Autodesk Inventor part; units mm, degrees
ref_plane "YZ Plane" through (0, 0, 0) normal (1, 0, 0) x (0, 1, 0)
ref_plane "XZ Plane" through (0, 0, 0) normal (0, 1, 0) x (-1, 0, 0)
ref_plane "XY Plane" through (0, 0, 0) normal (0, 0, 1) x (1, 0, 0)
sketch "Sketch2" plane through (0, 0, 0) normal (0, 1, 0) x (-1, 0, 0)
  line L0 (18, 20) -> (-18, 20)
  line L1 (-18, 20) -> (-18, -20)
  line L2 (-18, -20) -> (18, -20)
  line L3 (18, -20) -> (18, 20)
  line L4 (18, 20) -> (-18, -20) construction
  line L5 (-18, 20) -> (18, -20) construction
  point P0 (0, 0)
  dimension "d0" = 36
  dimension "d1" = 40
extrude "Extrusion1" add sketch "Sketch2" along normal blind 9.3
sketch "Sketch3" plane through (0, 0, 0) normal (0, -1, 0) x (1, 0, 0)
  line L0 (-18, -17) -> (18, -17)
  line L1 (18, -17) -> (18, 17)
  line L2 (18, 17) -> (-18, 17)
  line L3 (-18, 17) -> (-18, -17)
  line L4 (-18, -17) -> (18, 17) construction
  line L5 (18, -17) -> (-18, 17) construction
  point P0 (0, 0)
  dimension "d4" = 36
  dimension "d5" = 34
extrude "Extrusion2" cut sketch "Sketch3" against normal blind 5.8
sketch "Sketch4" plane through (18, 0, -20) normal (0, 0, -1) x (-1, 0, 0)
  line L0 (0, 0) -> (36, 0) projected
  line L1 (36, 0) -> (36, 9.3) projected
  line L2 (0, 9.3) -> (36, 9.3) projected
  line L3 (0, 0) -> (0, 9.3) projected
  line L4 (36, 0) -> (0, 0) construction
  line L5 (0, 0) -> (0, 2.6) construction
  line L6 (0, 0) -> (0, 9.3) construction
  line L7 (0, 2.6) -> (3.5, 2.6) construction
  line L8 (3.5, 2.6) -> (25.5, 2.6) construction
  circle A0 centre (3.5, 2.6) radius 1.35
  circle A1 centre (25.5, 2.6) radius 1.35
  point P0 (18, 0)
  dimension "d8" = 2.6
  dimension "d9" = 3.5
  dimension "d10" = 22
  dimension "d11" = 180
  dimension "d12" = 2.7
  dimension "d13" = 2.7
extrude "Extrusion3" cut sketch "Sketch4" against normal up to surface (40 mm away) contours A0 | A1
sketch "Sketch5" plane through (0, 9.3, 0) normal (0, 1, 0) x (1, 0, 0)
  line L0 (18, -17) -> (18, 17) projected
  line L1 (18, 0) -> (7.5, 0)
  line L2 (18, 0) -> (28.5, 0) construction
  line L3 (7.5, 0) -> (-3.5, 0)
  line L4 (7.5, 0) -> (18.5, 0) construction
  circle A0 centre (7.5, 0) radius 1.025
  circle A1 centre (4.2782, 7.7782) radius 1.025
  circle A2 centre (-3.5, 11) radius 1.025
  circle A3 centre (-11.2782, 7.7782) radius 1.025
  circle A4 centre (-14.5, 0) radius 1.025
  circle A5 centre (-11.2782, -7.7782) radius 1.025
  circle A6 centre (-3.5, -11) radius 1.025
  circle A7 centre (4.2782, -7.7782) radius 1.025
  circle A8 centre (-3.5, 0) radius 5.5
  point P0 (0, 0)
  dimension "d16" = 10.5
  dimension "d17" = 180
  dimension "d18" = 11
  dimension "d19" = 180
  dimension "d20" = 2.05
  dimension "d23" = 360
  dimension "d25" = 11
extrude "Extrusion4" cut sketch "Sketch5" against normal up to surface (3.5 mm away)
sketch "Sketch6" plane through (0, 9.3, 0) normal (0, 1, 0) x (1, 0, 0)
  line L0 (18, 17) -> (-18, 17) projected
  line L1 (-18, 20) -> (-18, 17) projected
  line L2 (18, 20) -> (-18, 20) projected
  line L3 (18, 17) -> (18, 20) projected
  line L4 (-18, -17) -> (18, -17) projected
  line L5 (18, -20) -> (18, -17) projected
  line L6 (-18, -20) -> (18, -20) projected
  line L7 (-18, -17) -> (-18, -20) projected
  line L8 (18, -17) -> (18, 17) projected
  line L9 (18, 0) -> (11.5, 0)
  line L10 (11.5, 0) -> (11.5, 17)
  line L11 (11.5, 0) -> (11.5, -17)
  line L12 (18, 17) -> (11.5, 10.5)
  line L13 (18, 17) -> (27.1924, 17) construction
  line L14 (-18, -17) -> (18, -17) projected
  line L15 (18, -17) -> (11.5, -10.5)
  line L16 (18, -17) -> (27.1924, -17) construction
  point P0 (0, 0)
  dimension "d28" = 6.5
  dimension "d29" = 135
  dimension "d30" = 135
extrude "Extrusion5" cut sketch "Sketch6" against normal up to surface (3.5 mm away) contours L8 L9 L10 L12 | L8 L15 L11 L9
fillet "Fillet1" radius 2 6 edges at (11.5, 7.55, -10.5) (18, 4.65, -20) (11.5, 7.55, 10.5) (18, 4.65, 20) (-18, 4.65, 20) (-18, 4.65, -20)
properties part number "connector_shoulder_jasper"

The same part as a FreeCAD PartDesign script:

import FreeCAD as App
import Part
import Sketcher

V = App.Vector
Q = App.Units.Quantity


def edges_at(feature, points):
    """Names of the edges that pass closest to the given points."""
    edges = feature.Shape.Edges
    near = lambda p: min(range(len(edges)), key=lambda i: edges[i].distToShape(Part.Vertex(*p))[0])
    return sorted({f"Edge{near(p) + 1}" for p in points})


def add_polygon(sketch, points):
    """Adds a closed chain of lines whose ends are joined by coincident constraints."""
    first, n = sketch.GeometryCount, len(points)
    for a, b in zip(points, points[1:] + points[:1]):
        sketch.addGeometry(Part.LineSegment(App.Vector(*a, 0), App.Vector(*b, 0)), False)
    for i in range(n):
        sketch.addConstraint(Sketcher.Constraint("Coincident", first + i, 2, first + (i + 1) % n, 1))

doc = App.newDocument("Part")
body = doc.addObject("PartDesign::Body", "Body")

sketch1 = body.newObject("Sketcher::SketchObject", "Sketch")
sketch1.AttachmentSupport = (doc.getObject("XZ_Plane"), [""])
sketch1.MapMode = "FlatFace"
add_polygon(sketch1, [(-18, -20), (-18, 20), (18, 20), (18, -20)])
sketch1.addConstraint([
    Sketcher.Constraint("Vertical", 0),
    Sketcher.Constraint("Horizontal", 1),
    Sketcher.Constraint("Vertical", 2),
    Sketcher.Constraint("Horizontal", 3),
    Sketcher.Constraint("Symmetric", 0, 2, 2, 2, -1, 1),
    Sketcher.Constraint("DistanceX", 1, 1, 1, 2, Q("36 mm")),
    Sketcher.Constraint("DistanceY", 0, 1, 0, 2, Q("40 mm")),
])
pad1 = body.newObject("PartDesign::Pad", "Pad")
pad1.Profile = sketch1
pad1.Length = 9.3
pad1.Reversed = True

sketch2 = body.newObject("Sketcher::SketchObject", "Sketch001")
sketch2.AttachmentSupport = (doc.getObject("XZ_Plane"), [""])
sketch2.MapMode = "FlatFace"
add_polygon(sketch2, [(-18, 17), (-18, -17), (18, -17), (18, 17)])
sketch2.addConstraint([
    Sketcher.Constraint("Vertical", 0),
    Sketcher.Constraint("Horizontal", 1),
    Sketcher.Constraint("Vertical", 2),
    Sketcher.Constraint("Horizontal", 3),
    Sketcher.Constraint("Symmetric", 0, 2, 2, 2, -1, 1),
    Sketcher.Constraint("DistanceX", 1, 1, 1, 2, Q("36 mm")),
    Sketcher.Constraint("DistanceY", 0, 2, 0, 1, Q("34 mm")),
])
pocket1 = body.newObject("PartDesign::Pocket", "Pocket")
pocket1.Profile = sketch2
pocket1.Length = 5.8

sketch3 = body.newObject("Sketcher::SketchObject", "Sketch002")
sketch3.AttachmentSupport = (doc.getObject("XY_Plane"), [""])
sketch3.MapMode = "FlatFace"
sketch3.AttachmentOffset = App.Placement(V(0, 0, -20), App.Rotation())
sketch3.addGeometry([
    Part.Circle(V(14.5, 2.6, 0), V(0, 0, 1), 1.35),
    Part.Circle(V(-7.5, 2.6, 0), V(0, 0, 1), 1.35),
], False)
sketch3.addConstraint([
    Sketcher.Constraint("Equal", 0, 1),
    Sketcher.Constraint("Horizontal", 0, 3, 1, 3),
    Sketcher.Constraint("Diameter", 0, Q("2.7 mm")),
    Sketcher.Constraint("DistanceX", 1, 3, 0, 3, Q("22 mm")),
    Sketcher.Constraint("DistanceY", -1, 1, 0, 3, Q("2.6 mm")),
    Sketcher.Constraint("DistanceX", -1, 1, 0, 3, Q("14.5 mm")),
])
pocket2 = body.newObject("PartDesign::Pocket", "Pocket001")
pocket2.Profile = sketch3
pocket2.Length = 40
pocket2.Reversed = True

sketch4 = body.newObject("Sketcher::SketchObject", "Sketch003")
sketch4.AttachmentSupport = (doc.getObject("XZ_Plane"), [""])
sketch4.MapMode = "FlatFace"
sketch4.AttachmentOffset = App.Placement(V(0, 0, -9.3), App.Rotation())
sketch4.addGeometry([
    Part.Circle(V(7.5, 0, 0), V(0, 0, 1), 1.025),
    Part.Circle(V(-3.5, 0, 0), V(0, 0, 1), 5.5),
    Part.Circle(V(4.2782, -7.7782, 0), V(0, 0, 1), 1.025),
    Part.Circle(V(-3.5, -11, 0), V(0, 0, 1), 1.025),
    Part.Circle(V(-11.2782, -7.7782, 0), V(0, 0, 1), 1.025),
    Part.Circle(V(-14.5, 0, 0), V(0, 0, 1), 1.025),
    Part.Circle(V(-11.2782, 7.7782, 0), V(0, 0, 1), 1.025),
    Part.Circle(V(-3.5, 11, 0), V(0, 0, 1), 1.025),
    Part.Circle(V(4.2782, 7.7782, 0), V(0, 0, 1), 1.025),
], False)
sketch4.addConstraint([
    Sketcher.Constraint("Equal", 0, 2),
    Sketcher.Constraint("Equal", 2, 3),
    Sketcher.Constraint("Equal", 3, 4),
    Sketcher.Constraint("Equal", 4, 5),
    Sketcher.Constraint("Equal", 5, 6),
    Sketcher.Constraint("Equal", 6, 7),
    Sketcher.Constraint("Equal", 7, 8),
    Sketcher.Constraint("Symmetric", 4, 3, 6, 3, -1),
    Sketcher.Constraint("Symmetric", 3, 3, 7, 3, -1),
    Sketcher.Constraint("Symmetric", 2, 3, 8, 3, -1),
    Sketcher.Constraint("PointOnObject", 0, 3, -1),
    Sketcher.Constraint("PointOnObject", 1, 3, -1),
    Sketcher.Constraint("PointOnObject", 5, 3, -1),
    Sketcher.Constraint("Horizontal", 2, 3, 4, 3),
    Sketcher.Constraint("Vertical", 1, 3, 3, 3),
    Sketcher.Constraint("Diameter", 1, Q("11 mm")),
    Sketcher.Constraint("Diameter", 0, Q("2.05 mm")),
    Sketcher.Constraint("DistanceY", 3, 3, -1, 1, Q("11 mm")),
    Sketcher.Constraint("DistanceX", 1, 3, 0, 3, Q("11 mm")),
    Sketcher.Constraint("DistanceX", 5, 3, 1, 3, Q("11 mm")),
    Sketcher.Constraint("DistanceX", -1, 1, 0, 3, Q("7.5 mm")),
    Sketcher.Constraint("DistanceX", -1, 1, 2, 3, Q("4.2782 mm")),
    Sketcher.Constraint("DistanceY", 2, 3, -1, 1, Q("7.7782 mm")),
    Sketcher.Constraint("DistanceX", 4, 3, -1, 1, Q("11.2782 mm")),
])
pocket3 = body.newObject("PartDesign::Pocket", "Pocket002")
pocket3.Profile = sketch4
pocket3.Length = 3.5
pocket3.Reversed = True

sketch5 = body.newObject("Sketcher::SketchObject", "Sketch004")
sketch5.AttachmentSupport = (doc.getObject("XZ_Plane"), [""])
sketch5.MapMode = "FlatFace"
sketch5.AttachmentOffset = App.Placement(V(0, 0, -9.3), App.Rotation())
add_polygon(sketch5, [(18, -17), (11.5, -10.5), (11.5, 10.5), (18, 17)])
sketch5.addConstraint([
    Sketcher.Constraint("Vertical", 1),
    Sketcher.Constraint("Vertical", 3),
    Sketcher.Constraint("Perpendicular", 0, 2),
    Sketcher.Constraint("Equal", 0, 2),
    Sketcher.Constraint("DistanceX", 1, 2, 2, 2, Q("6.5 mm")),
    Sketcher.Constraint("DistanceY", 1, 1, 1, 2, Q("21 mm")),
    Sketcher.Constraint("DistanceX", -1, 1, 2, 2, Q("18 mm")),
    Sketcher.Constraint("DistanceY", -1, 1, 2, 2, Q("17 mm")),
])
pocket4 = body.newObject("PartDesign::Pocket", "Pocket003")
pocket4.Profile = sketch5
pocket4.Length = 3.5
pocket4.Reversed = True
doc.recompute()

fillet = body.newObject("PartDesign::Fillet", "Fillet")
fillet.Base = (pocket4, edges_at(pocket4, [
    (11.5, 7.55, -10.5),
    (18, 4.65, -20),
    (11.5, 7.55, 10.5),
    (18, 4.65, 20),
    (-18, 4.65, 20),
    (-18, 4.65, -20),
]))
fillet.Radius = 2

doc.recompute()
